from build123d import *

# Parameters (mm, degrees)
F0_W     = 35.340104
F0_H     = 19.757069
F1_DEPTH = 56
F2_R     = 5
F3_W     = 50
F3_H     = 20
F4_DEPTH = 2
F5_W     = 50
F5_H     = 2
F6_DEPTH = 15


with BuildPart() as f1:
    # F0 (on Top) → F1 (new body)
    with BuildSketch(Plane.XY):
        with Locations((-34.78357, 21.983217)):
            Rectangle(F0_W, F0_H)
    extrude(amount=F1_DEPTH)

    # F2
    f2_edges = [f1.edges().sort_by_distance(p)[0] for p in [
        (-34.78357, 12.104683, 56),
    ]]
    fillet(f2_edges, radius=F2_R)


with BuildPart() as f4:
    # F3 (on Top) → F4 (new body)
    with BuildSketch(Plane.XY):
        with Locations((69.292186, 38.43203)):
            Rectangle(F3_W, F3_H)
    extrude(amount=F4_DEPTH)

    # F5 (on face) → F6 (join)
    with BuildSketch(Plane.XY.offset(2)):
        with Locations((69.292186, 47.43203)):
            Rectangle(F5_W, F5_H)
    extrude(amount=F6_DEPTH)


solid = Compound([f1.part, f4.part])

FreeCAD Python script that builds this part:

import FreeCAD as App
import Part
import Sketcher
from FreeCAD import Vector
Q = App.Units.Quantity


def edges_at(feature, points):
    """Names of the edges that pass closest to the given points."""
    edges = feature.Shape.Edges
    near = lambda p: min(range(len(edges)), key=lambda i: edges[i].distToShape(Part.Vertex(*p))[0])
    return sorted({f"Edge{near(p) + 1}" for p in points})


def add_polygon(sketch, points):
    """Adds a closed chain of lines whose ends are joined by coincident constraints."""
    first, n = sketch.GeometryCount, len(points)
    for a, b in zip(points, points[1:] + points[:1]):
        sketch.addGeometry(Part.LineSegment(App.Vector(*a, 0), App.Vector(*b, 0)), False)
    for i in range(n):
        sketch.addConstraint(Sketcher.Constraint("Coincident", first + i, 2, first + (i + 1) % n, 1))

doc = App.newDocument("Part")
body = doc.addObject("PartDesign::Body", "Body")

sketch1 = doc.addObject("Sketcher::SketchObject", "Sketch")
body.addObject(sketch1)
sketch1.AttachmentSupport = (doc.XY_Plane, [""])
sketch1.MapMode = "FlatFace"
add_polygon(sketch1, [(-52, 32), (-52, 12), (-17, 12), (-17, 32)])
sketch1.addConstraint([
    Sketcher.Constraint("Vertical", 0),
    Sketcher.Constraint("Horizontal", 1),
    Sketcher.Constraint("Vertical", 2),
    Sketcher.Constraint("Horizontal", 3),
    Sketcher.Constraint("DistanceY", 0, 2, 0, 1, Q("19.757069 mm")),
    Sketcher.Constraint("DistanceX", 1, 1, 1, 2, Q("35.340104 mm")),
    Sketcher.Constraint("DistanceY", -1, 1, 2, 2, Q("31.861752 mm")),
    Sketcher.Constraint("DistanceX", 0, 2, -1, 1, Q("52.453622 mm")),
])
pad1 = doc.addObject("PartDesign::Pad", "Pad")
body.addObject(pad1)
pad1.Profile = sketch1
pad1.Length = 56
doc.recompute()

fillet = doc.addObject("PartDesign::Fillet", "Fillet")
body.addObject(fillet)
fillet.Base = (pad1, edges_at(pad1, [(-34.784, 12.105, 56)]))
fillet.Radius = 5
body2 = doc.addObject("PartDesign::Body", "Body001")

sketch2 = doc.addObject("Sketcher::SketchObject", "Sketch001")
body2.addObject(sketch2)
sketch2.AttachmentSupport = (doc.getObject("XY_Plane001"), [""])
sketch2.MapMode = "FlatFace"
add_polygon(sketch2, [(44, 48), (44, 28), (94, 28), (94, 48)])
sketch2.addConstraint([
    Sketcher.Constraint("Vertical", 0),
    Sketcher.Constraint("Horizontal", 1),
    Sketcher.Constraint("Vertical", 2),
    Sketcher.Constraint("Horizontal", 3),
    Sketcher.Constraint("DistanceX", 1, 1, 1, 2, Q("50 mm")),
    Sketcher.Constraint("DistanceY", 0, 2, 0, 1, Q("20 mm")),
    Sketcher.Constraint("DistanceY", -1, 1, 0, 2, Q("28.43203 mm")),
    Sketcher.Constraint("DistanceX", -1, 1, 0, 2, Q("44.292186 mm")),
])
pad2 = doc.addObject("PartDesign::Pad", "Pad001")
body2.addObject(pad2)
pad2.Profile = sketch2
pad2.Length = 2

sketch3 = doc.addObject("Sketcher::SketchObject", "Sketch002")
body2.addObject(sketch3)
sketch3.AttachmentSupport = (doc.getObject("XY_Plane001"), [""])
sketch3.MapMode = "FlatFace"
sketch3.AttachmentOffset = App.Placement(Vector(0, 0, 2), App.Rotation())
add_polygon(sketch3, [(44.3, 48.4), (44.3, 46.4), (94.3, 46.4), (94.3, 48.4)])
sketch3.addConstraint([
    Sketcher.Constraint("Vertical", 0),
    Sketcher.Constraint("Horizontal", 1),
    Sketcher.Constraint("Vertical", 2),
    Sketcher.Constraint("Horizontal", 3),
    Sketcher.Constraint("DistanceX", 1, 1, 1, 2, Q("50 mm")),
    Sketcher.Constraint("DistanceY", 0, 2, 0, 1, Q("2 mm")),
    Sketcher.Constraint("DistanceY", -1, 1, 0, 2, Q("46.43203 mm")),
    Sketcher.Constraint("DistanceX", -1, 1, 0, 2, Q("44.292186 mm")),
])
pad3 = doc.addObject("PartDesign::Pad", "Pad002")
body2.addObject(pad3)
pad3.Profile = sketch3
pad3.Length = 15

doc.recompute()
